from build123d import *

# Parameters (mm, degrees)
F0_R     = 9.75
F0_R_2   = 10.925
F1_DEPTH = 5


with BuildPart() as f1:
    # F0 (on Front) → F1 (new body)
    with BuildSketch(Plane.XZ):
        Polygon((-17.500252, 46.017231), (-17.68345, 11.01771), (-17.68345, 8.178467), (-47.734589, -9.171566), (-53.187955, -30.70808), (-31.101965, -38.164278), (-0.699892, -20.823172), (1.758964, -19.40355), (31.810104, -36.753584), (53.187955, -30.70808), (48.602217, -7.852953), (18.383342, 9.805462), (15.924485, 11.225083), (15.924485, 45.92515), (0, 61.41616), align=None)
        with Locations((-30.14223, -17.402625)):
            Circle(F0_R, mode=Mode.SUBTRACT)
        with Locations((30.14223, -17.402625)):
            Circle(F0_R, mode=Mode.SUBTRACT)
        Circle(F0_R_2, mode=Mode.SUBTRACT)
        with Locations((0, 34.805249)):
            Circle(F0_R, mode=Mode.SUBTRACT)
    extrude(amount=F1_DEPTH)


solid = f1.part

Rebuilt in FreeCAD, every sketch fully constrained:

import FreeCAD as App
import Part
import Sketcher
Q = App.Units.Quantity


def add_polygon(sketch, points):
    """Adds a closed chain of lines whose ends are joined by coincident constraints."""
    first, n = sketch.GeometryCount, len(points)
    for a, b in zip(points, points[1:] + points[:1]):
        sketch.addGeometry(Part.LineSegment(App.Vector(*a, 0), App.Vector(*b, 0)), False)
    for i in range(n):
        sketch.addConstraint(Sketcher.Constraint("Coincident", first + i, 2, first + (i + 1) % n, 1))

doc = App.newDocument("Part")
body = doc.addObject("PartDesign::Body", "Body")

# Sketch on XZ plane
sketch1 = body.newObject("Sketcher::SketchObject", "Sketch")
sketch1.AttachmentSupport = (doc.getObject("XZ_Plane"), [""])
sketch1.MapMode = "FlatFace"
add_polygon(sketch1, [(-17.5, 46), (-17.7, 11), (-17.7, 8.2), (-47.7, -9.2), (-53.2, -30.7), (-31.1, -38.2), (-0.7, -20.8), (1.8, -19.4), (31.8, -36.8), (53.2, -30.7), (48.6, -7.9), (18.4, 9.8), (15.9, 11.2), (15.9, 45.9), (0, 61.4)])  # lines 0-14
sketch1.addGeometry(Part.Circle(App.Vector(-30.1, -17.4, 0), App.Vector(0, 0, 1), 9.8), False)  # 15
sketch1.addGeometry(Part.Circle(App.Vector(0, 0, 0), App.Vector(0, 0, 1), 10.9), False)  # 16
sketch1.addGeometry(Part.Circle(App.Vector(30.1, -17.4, 0), App.Vector(0, 0, 1), 9.8), False)  # 17
sketch1.addGeometry(Part.Circle(App.Vector(0, 34.8, 0), App.Vector(0, 0, 1), 9.8), False)  # 18
sketch1.addConstraint(Sketcher.Constraint("Vertical", 1))
sketch1.addConstraint(Sketcher.Constraint("Vertical", 12))
sketch1.addConstraint(Sketcher.Constraint("Coincident", 16, 3, -1, 1))
sketch1.addConstraint(Sketcher.Constraint("Equal", 15, 17))
sketch1.addConstraint(Sketcher.Constraint("Equal", 17, 18))
sketch1.addConstraint(Sketcher.Constraint("Symmetric", 15, 3, 17, 3, -2))
sketch1.addConstraint(Sketcher.Constraint("Symmetric", 3, 2, 8, 2, -2))
sketch1.addConstraint(Sketcher.Constraint("PointOnObject", 18, 3, -2))
sketch1.addConstraint(Sketcher.Constraint("PointOnObject", 13, 2, -2))
sketch1.addConstraint(Sketcher.Constraint("Parallel", 2, 6))
sketch1.addConstraint(Sketcher.Constraint("Parallel", 7, 11))
sketch1.addConstraint(Sketcher.Constraint("Equal", 0, 5))
sketch1.addConstraint(Sketcher.Constraint("Equal", 2, 7))
sketch1.addConstraint(Sketcher.Constraint("Equal", 3, 8))
sketch1.addConstraint(Sketcher.Constraint("Equal", 4, 9))
sketch1.addConstraint(Sketcher.Constraint("Equal", 5, 10))
sketch1.addConstraint(Sketcher.Constraint("Equal", 6, 11))
sketch1.addConstraint(Sketcher.Constraint("Equal", 8, 13))
sketch1.addConstraint(Sketcher.Constraint("Equal", 9, 14))
sketch1.addConstraint(Sketcher.Constraint("Diameter", 15, 19.5))
sketch1.addConstraint(Sketcher.Constraint("Diameter", 16, 21.85))
sketch1.addConstraint(Sketcher.Constraint("Angle", 2, Q("-150 deg")))
sketch1.addConstraint(Sketcher.Constraint("Angle", 7, Q("-30 deg")))
sketch1.addConstraint(Sketcher.Constraint("Distance", 0, 35.0))
sketch1.addConstraint(Sketcher.Constraint("DistanceY", 4, 2, 3, 2, 7.456198))
sketch1.addConstraint(Sketcher.Constraint("DistanceY", 18, 3, 12, 2, 11.119901))
sketch1.addConstraint(Sketcher.Constraint("DistanceX", 0, 2, 14, 2, 0.183198))
sketch1.addConstraint(Sketcher.Constraint("DistanceY", 1, 2, 1, 1, 2.839243))
sketch1.addConstraint(Sketcher.Constraint("DistanceY", 12, 1, 12, 2, 34.700067))
sketch1.addConstraint(Sketcher.Constraint("DistanceX", 15, 3, -1, 1, 30.14223))
sketch1.addConstraint(Sketcher.Constraint("DistanceY", -1, 1, 18, 3, 34.805249))
sketch1.addConstraint(Sketcher.Constraint("DistanceX", 0, 2, -1, 1, 17.68345))
sketch1.addConstraint(Sketcher.Constraint("DistanceY", -1, 1, 0, 2, 11.01771))
sketch1.addConstraint(Sketcher.Constraint("DistanceX", 2, 2, -1, 1, 47.734589))
sketch1.addConstraint(Sketcher.Constraint("DistanceY", 3, 2, -1, 1, 30.70808))
sketch1.addConstraint(Sketcher.Constraint("DistanceX", 5, 2, -1, 1, 0.699892))
sketch1.addConstraint(Sketcher.Constraint("DistanceY", 5, 2, -1, 1, 20.823172))
sketch1.addConstraint(Sketcher.Constraint("DistanceY", 6, 2, -1, 1, 19.40355))
sketch1.addConstraint(Sketcher.Constraint("DistanceY", 15, 3, 1, 2, 25.581092))
pad1 = body.newObject("PartDesign::Pad", "Pad")
pad1.Profile = sketch1
pad1.Length = 5

doc.recompute()
